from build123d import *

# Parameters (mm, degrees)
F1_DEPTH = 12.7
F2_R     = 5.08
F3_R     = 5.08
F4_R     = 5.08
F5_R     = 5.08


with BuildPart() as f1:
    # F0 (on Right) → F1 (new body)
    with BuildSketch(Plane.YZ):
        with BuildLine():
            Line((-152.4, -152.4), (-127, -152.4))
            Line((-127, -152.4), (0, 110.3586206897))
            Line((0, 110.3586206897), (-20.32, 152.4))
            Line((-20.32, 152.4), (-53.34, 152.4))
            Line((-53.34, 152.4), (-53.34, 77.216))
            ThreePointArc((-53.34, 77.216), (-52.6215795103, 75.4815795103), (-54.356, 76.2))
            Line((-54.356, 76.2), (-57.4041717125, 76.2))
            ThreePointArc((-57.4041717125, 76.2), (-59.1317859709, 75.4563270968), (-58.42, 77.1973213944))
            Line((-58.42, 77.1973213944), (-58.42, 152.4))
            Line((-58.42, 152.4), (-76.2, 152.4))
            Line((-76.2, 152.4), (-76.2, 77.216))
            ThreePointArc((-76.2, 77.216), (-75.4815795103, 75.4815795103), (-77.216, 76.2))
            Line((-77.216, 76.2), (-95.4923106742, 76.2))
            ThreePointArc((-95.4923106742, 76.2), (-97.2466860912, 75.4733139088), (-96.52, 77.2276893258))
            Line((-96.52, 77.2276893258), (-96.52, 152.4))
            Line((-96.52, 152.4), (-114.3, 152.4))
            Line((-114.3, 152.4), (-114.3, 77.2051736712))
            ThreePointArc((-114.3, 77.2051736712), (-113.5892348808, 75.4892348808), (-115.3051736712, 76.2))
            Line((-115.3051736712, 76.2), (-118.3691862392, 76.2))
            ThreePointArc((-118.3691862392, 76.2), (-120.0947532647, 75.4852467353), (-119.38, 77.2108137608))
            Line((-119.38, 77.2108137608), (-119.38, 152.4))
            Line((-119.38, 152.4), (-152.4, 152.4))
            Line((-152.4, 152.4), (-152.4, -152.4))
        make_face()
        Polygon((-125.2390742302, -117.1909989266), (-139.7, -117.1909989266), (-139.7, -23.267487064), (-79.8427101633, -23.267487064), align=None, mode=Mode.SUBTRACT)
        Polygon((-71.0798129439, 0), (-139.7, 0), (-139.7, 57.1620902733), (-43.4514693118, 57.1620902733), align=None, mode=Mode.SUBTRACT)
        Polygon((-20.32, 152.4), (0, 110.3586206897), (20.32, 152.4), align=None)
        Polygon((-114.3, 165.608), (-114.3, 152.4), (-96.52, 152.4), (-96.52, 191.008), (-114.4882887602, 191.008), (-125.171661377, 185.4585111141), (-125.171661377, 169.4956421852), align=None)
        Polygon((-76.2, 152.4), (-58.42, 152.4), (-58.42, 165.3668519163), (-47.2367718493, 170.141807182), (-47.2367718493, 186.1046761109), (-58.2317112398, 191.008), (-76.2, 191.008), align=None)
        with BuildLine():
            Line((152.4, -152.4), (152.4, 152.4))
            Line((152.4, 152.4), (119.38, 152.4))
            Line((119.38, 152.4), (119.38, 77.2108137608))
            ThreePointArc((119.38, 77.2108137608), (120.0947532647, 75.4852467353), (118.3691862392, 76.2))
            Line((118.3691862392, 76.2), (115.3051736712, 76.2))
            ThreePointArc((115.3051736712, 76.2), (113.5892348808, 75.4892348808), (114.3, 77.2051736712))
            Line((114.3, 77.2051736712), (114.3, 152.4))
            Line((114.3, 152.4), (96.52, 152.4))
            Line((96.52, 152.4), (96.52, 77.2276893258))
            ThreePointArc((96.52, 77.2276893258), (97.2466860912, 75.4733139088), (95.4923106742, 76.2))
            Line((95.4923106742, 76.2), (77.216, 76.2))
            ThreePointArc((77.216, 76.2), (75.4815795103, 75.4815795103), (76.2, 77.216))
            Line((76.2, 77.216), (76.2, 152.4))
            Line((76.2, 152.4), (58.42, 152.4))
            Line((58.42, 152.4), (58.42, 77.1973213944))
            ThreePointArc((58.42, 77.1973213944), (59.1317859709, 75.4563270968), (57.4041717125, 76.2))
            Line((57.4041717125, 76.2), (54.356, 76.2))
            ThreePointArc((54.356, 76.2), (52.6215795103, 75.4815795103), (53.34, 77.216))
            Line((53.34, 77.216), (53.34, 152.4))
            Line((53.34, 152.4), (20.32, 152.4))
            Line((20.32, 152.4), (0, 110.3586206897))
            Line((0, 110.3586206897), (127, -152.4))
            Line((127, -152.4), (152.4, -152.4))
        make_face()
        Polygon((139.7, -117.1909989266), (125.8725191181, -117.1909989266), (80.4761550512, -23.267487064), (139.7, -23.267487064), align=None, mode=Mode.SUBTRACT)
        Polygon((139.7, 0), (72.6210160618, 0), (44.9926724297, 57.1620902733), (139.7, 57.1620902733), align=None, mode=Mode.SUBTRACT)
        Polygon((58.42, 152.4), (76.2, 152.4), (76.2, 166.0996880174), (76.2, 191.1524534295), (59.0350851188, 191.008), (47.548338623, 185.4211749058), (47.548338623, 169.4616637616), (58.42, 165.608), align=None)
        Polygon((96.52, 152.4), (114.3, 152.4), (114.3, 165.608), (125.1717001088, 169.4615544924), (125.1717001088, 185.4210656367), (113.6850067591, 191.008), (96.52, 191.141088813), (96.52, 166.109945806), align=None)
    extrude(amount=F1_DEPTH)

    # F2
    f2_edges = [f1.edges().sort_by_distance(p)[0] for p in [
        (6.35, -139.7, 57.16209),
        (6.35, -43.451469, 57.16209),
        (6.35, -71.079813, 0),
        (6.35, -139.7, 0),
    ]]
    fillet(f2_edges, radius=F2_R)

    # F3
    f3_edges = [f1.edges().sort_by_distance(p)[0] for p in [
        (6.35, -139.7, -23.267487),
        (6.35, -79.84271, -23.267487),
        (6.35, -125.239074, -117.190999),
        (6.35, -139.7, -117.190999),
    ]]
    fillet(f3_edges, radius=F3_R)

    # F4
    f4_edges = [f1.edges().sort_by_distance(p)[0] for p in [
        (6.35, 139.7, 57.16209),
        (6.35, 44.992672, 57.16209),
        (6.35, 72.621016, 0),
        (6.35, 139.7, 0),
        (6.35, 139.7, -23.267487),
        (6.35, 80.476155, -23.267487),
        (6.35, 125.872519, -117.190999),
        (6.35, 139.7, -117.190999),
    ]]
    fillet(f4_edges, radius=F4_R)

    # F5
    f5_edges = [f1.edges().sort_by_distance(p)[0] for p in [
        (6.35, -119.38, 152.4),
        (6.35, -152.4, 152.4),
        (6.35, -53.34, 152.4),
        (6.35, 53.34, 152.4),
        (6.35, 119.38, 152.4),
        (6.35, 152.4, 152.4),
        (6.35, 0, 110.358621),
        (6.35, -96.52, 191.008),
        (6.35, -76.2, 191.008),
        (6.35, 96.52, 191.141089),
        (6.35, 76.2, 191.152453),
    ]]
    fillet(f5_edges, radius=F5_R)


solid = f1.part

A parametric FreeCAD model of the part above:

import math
import FreeCAD as App
import Part
import Sketcher
from FreeCAD import Vector
Q = App.Units.Quantity


def edges_at(feature, points):
    """Names of the edges that pass closest to the given points."""
    edges = feature.Shape.Edges
    near = lambda p: min(range(len(edges)), key=lambda i: edges[i].distToShape(Part.Vertex(*p))[0])
    return sorted({f"Edge{near(p) + 1}" for p in points})

doc = App.newDocument("Part")
params = doc.addObject("Spreadsheet::Sheet", "Params")
for row, (alias, value) in enumerate([
    ("sketch1_width", "1 in"),
    ("sketch1_height", "12 in"),
    ("sketch1_radius", "0.04 in"),
    ("sketch1_width2", "1.3 in"),
    ("sketch1_width3", "4.2 in"),
    ("pad1_length", "0.5 in"),
    ("fillet_radius", "0.2 in"),
    ("fillet2_radius", "0.2 in"),
    ("fillet3_radius", "0.2 in"),
    ("fillet4_radius", "0.2 in"),
], start=1):
    params.set(f"A{row}", alias)
    params.set(f"B{row}", "=" + value)
    params.setAlias(f"B{row}", alias)

body = doc.addObject("PartDesign::Body", "Body")

# Sketch on YZ plane
sketch1 = body.newObject("Sketcher::SketchObject", "Sketch")
sketch1.AttachmentSupport = (doc.getObject("YZ_Plane"), [""])
sketch1.MapMode = "FlatFace"
sketch1.addGeometry([
    Part.LineSegment(Vector(-152.4, -152.4, 0), Vector(-127, -152.4, 0)),  # 0
    Part.LineSegment(Vector(-127, -152.4, 0), Vector(0, 110.358621, 0)),  # 1
    Part.LineSegment(Vector(0, 110.358621, 0), Vector(127, -152.4, 0)),  # 2
    Part.LineSegment(Vector(127, -152.4, 0), Vector(152.4, -152.4, 0)),  # 3
    Part.LineSegment(Vector(152.4, -152.4, 0), Vector(152.4, 152.4, 0)),  # 4
    Part.LineSegment(Vector(152.4, 152.4, 0), Vector(119.38, 152.4, 0)),  # 5
    Part.LineSegment(Vector(119.38, 152.4, 0), Vector(119.38, 77.210814, 0)),  # 6
    Part.ArcOfCircle(Part.Circle(Vector(119.38, 76.2, 0), Vector(0, 0, 1), 1.010814), math.radians(180), math.radians(450)),  # 7
    Part.LineSegment(Vector(118.369186, 76.2, 0), Vector(115.305174, 76.2, 0)),  # 8
    Part.ArcOfCircle(Part.Circle(Vector(114.3, 76.2, 0), Vector(0, 0, 1), 1.005174), math.radians(90), math.radians(360)),  # 9
    Part.LineSegment(Vector(114.3, 77.205174, 0), Vector(114.3, 165.608, 0)),  # 10
    Part.LineSegment(Vector(114.3, 165.608, 0), Vector(125.1717, 169.461554, 0)),  # 11
    Part.LineSegment(Vector(125.1717, 169.461554, 0), Vector(125.1717, 185.421066, 0)),  # 12
    Part.LineSegment(Vector(125.1717, 185.421066, 0), Vector(113.685007, 191.008, 0)),  # 13
    Part.LineSegment(Vector(113.685007, 191.008, 0), Vector(96.52, 191.141089, 0)),  # 14
    Part.LineSegment(Vector(96.52, 191.141089, 0), Vector(96.52, 77.227689, 0)),  # 15
    Part.ArcOfCircle(Part.Circle(Vector(96.52, 76.2, 0), Vector(0, 0, 1), 1.027689), math.radians(180), math.radians(450)),  # 16
    Part.LineSegment(Vector(95.492311, 76.2, 0), Vector(77.216, 76.2, 0)),  # 17
    Part.ArcOfCircle(Part.Circle(Vector(76.2, 76.2, 0), Vector(0, 0, 1), 1.016), math.radians(90), math.radians(360)),  # 18
    Part.LineSegment(Vector(76.2, 77.216, 0), Vector(76.2, 191.152453, 0)),  # 19
    Part.LineSegment(Vector(76.2, 191.152453, 0), Vector(59.035085, 191.008, 0)),  # 20
    Part.LineSegment(Vector(59.035085, 191.008, 0), Vector(47.548339, 185.421175, 0)),  # 21
    Part.LineSegment(Vector(47.548339, 185.421175, 0), Vector(47.548339, 169.461664, 0)),  # 22
    Part.LineSegment(Vector(47.548339, 169.461664, 0), Vector(58.42, 165.608, 0)),  # 23
    Part.LineSegment(Vector(58.42, 165.608, 0), Vector(58.42, 77.197321, 0)),  # 24
    Part.ArcOfCircle(Part.Circle(Vector(58.42, 76.181321, 0), Vector(0, 0, 1), 1.016), math.radians(178.946589), math.radians(450)),  # 25
    Part.LineSegment(Vector(57.404172, 76.2, 0), Vector(54.356, 76.2, 0)),  # 26
    Part.ArcOfCircle(Part.Circle(Vector(53.34, 76.2, 0), Vector(0, 0, 1), 1.016), math.radians(90), math.radians(360)),  # 27
    Part.LineSegment(Vector(53.34, 77.216, 0), Vector(53.34, 152.4, 0)),  # 28
    Part.LineSegment(Vector(53.34, 152.4, 0), Vector(-53.34, 152.4, 0)),  # 29
    Part.LineSegment(Vector(-53.34, 152.4, 0), Vector(-53.34, 77.216, 0)),  # 30
    Part.ArcOfCircle(Part.Circle(Vector(-53.34, 76.2, 0), Vector(0, 0, 1), 1.016), math.radians(180), math.radians(450)),  # 31
    Part.LineSegment(Vector(-54.356, 76.2, 0), Vector(-57.404172, 76.2, 0)),  # 32
    Part.ArcOfCircle(Part.Circle(Vector(-58.42, 76.181321, 0), Vector(0, 0, 1), 1.016), math.radians(90), math.radians(361.053411)),  # 33
    Part.LineSegment(Vector(-58.42, 77.197321, 0), Vector(-58.42, 165.366852, 0)),  # 34
    Part.LineSegment(Vector(-58.42, 165.366852, 0), Vector(-47.236772, 170.141807, 0)),  # 35
    Part.LineSegment(Vector(-47.236772, 170.141807, 0), Vector(-47.236772, 186.104676, 0)),  # 36
    Part.LineSegment(Vector(-47.236772, 186.104676, 0), Vector(-58.231711, 191.008, 0)),  # 37
    Part.LineSegment(Vector(-58.231711, 191.008, 0), Vector(-76.2, 191.008, 0)),  # 38
    Part.LineSegment(Vector(-76.2, 191.008, 0), Vector(-76.2, 77.216, 0)),  # 39
    Part.ArcOfCircle(Part.Circle(Vector(-76.2, 76.2, 0), Vector(0, 0, 1), 1.016), math.radians(180), math.radians(450)),  # 40
    Part.LineSegment(Vector(-77.216, 76.2, 0), Vector(-95.492311, 76.2, 0)),  # 41
    Part.ArcOfCircle(Part.Circle(Vector(-96.52, 76.2, 0), Vector(0, 0, 1), 1.027689), math.radians(90), math.radians(360)),  # 42
    Part.LineSegment(Vector(-96.52, 77.227689, 0), Vector(-96.52, 191.008, 0)),  # 43
    Part.LineSegment(Vector(-96.52, 191.008, 0), Vector(-114.488289, 191.008, 0)),  # 44
    Part.LineSegment(Vector(-114.488289, 191.008, 0), Vector(-125.171661, 185.458511, 0)),  # 45
    Part.LineSegment(Vector(-125.171661, 185.458511, 0), Vector(-125.171661, 169.495642, 0)),  # 46
    Part.LineSegment(Vector(-125.171661, 169.495642, 0), Vector(-114.3, 165.608, 0)),  # 47
    Part.LineSegment(Vector(-114.3, 165.608, 0), Vector(-114.3, 77.205174, 0)),  # 48
    Part.ArcOfCircle(Part.Circle(Vector(-114.3, 76.2, 0), Vector(0, 0, 1), 1.005174), math.radians(180), math.radians(450)),  # 49
    Part.LineSegment(Vector(-115.305174, 76.2, 0), Vector(-118.369186, 76.2, 0)),  # 50
    Part.ArcOfCircle(Part.Circle(Vector(-119.38, 76.2, 0), Vector(0, 0, 1), 1.010814), math.radians(90), math.radians(360)),  # 51
    Part.LineSegment(Vector(-119.38, 77.210814, 0), Vector(-119.38, 152.4, 0)),  # 52
    Part.LineSegment(Vector(-119.38, 152.4, 0), Vector(-152.4, 152.4, 0)),  # 53
    Part.LineSegment(Vector(-152.4, 152.4, 0), Vector(-152.4, -152.4, 0)),  # 54
    Part.LineSegment(Vector(-79.84271, -23.267487, 0), Vector(-125.239074, -117.190999, 0)),  # 55
    Part.LineSegment(Vector(-125.239074, -117.190999, 0), Vector(-139.7, -117.190999, 0)),  # 56
    Part.LineSegment(Vector(-139.7, -117.190999, 0), Vector(-139.7, -23.267487, 0)),  # 57
    Part.LineSegment(Vector(-139.7, -23.267487, 0), Vector(-79.84271, -23.267487, 0)),  # 58
    Part.LineSegment(Vector(139.7, -23.267487, 0), Vector(139.7, -117.190999, 0)),  # 59
    Part.LineSegment(Vector(139.7, -117.190999, 0), Vector(125.872519, -117.190999, 0)),  # 60
    Part.LineSegment(Vector(125.872519, -117.190999, 0), Vector(80.476155, -23.267487, 0)),  # 61
    Part.LineSegment(Vector(80.476155, -23.267487, 0), Vector(139.7, -23.267487, 0)),  # 62
    Part.LineSegment(Vector(-43.451469, 57.16209, 0), Vector(-71.079813, 0, 0)),  # 63
    Part.LineSegment(Vector(-71.079813, 0, 0), Vector(-139.7, 0, 0)),  # 64
    Part.LineSegment(Vector(-139.7, 0, 0), Vector(-139.7, 57.16209, 0)),  # 65
    Part.LineSegment(Vector(-139.7, 57.16209, 0), Vector(-43.451469, 57.16209, 0)),  # 66
    Part.LineSegment(Vector(139.7, 57.16209, 0), Vector(139.7, 0, 0)),  # 67
    Part.LineSegment(Vector(139.7, 0, 0), Vector(72.621016, 0, 0)),  # 68
    Part.LineSegment(Vector(72.621016, 0, 0), Vector(44.992672, 57.16209, 0)),  # 69
    Part.LineSegment(Vector(44.992672, 57.16209, 0), Vector(139.7, 57.16209, 0)),  # 70
], False)
sketch1.addConstraint([
    Sketcher.Constraint("Coincident", 0, 2, 1, 1),
    Sketcher.Constraint("Coincident", 1, 2, 2, 1),
    Sketcher.Constraint("Coincident", 2, 2, 3, 1),
    Sketcher.Constraint("Coincident", 3, 2, 4, 1),
    Sketcher.Constraint("Coincident", 4, 2, 5, 1),
    Sketcher.Constraint("Coincident", 5, 2, 6, 1),
    Sketcher.Constraint("Coincident", 6, 2, 7, 2),
    Sketcher.Constraint("Coincident", 7, 1, 8, 1),
    Sketcher.Constraint("Coincident", 8, 2, 9, 2),
    Sketcher.Constraint("Coincident", 9, 1, 10, 1),
    Sketcher.Constraint("Coincident", 10, 2, 11, 1),
    Sketcher.Constraint("Coincident", 11, 2, 12, 1),
    Sketcher.Constraint("Coincident", 12, 2, 13, 1),
    Sketcher.Constraint("Coincident", 13, 2, 14, 1),
    Sketcher.Constraint("Coincident", 14, 2, 15, 1),
    Sketcher.Constraint("Coincident", 15, 2, 16, 2),
    Sketcher.Constraint("Coincident", 16, 1, 17, 1),
    Sketcher.Constraint("Coincident", 17, 2, 18, 2),
    Sketcher.Constraint("Coincident", 18, 1, 19, 1),
    Sketcher.Constraint("Coincident", 19, 2, 20, 1),
    Sketcher.Constraint("Coincident", 20, 2, 21, 1),
    Sketcher.Constraint("Coincident", 21, 2, 22, 1),
    Sketcher.Constraint("Coincident", 22, 2, 23, 1),
    Sketcher.Constraint("Coincident", 23, 2, 24, 1),
    Sketcher.Constraint("Coincident", 24, 2, 25, 2),
    Sketcher.Constraint("Coincident", 25, 1, 26, 1),
    Sketcher.Constraint("Coincident", 26, 2, 27, 2),
    Sketcher.Constraint("Coincident", 27, 1, 28, 1),
    Sketcher.Constraint("Coincident", 28, 2, 29, 1),
    Sketcher.Constraint("Coincident", 29, 2, 30, 1),
    Sketcher.Constraint("Coincident", 30, 2, 31, 2),
    Sketcher.Constraint("Coincident", 31, 1, 32, 1),
    Sketcher.Constraint("Coincident", 32, 2, 33, 2),
    Sketcher.Constraint("Coincident", 33, 1, 34, 1),
    Sketcher.Constraint("Coincident", 34, 2, 35, 1),
    Sketcher.Constraint("Coincident", 35, 2, 36, 1),
    Sketcher.Constraint("Coincident", 36, 2, 37, 1),
    Sketcher.Constraint("Coincident", 37, 2, 38, 1),
    Sketcher.Constraint("Coincident", 38, 2, 39, 1),
    Sketcher.Constraint("Coincident", 39, 2, 40, 2),
    Sketcher.Constraint("Coincident", 40, 1, 41, 1),
    Sketcher.Constraint("Coincident", 41, 2, 42, 2),
    Sketcher.Constraint("Coincident", 42, 1, 43, 1),
    Sketcher.Constraint("Coincident", 43, 2, 44, 1),
    Sketcher.Constraint("Coincident", 44, 2, 45, 1),
    Sketcher.Constraint("Coincident", 45, 2, 46, 1),
    Sketcher.Constraint("Coincident", 46, 2, 47, 1),
    Sketcher.Constraint("Coincident", 47, 2, 48, 1),
    Sketcher.Constraint("Coincident", 48, 2, 49, 2),
    Sketcher.Constraint("Coincident", 49, 1, 50, 1),
    Sketcher.Constraint("Coincident", 50, 2, 51, 2),
    Sketcher.Constraint("Coincident", 51, 1, 52, 1),
    Sketcher.Constraint("Coincident", 52, 2, 53, 1),
    Sketcher.Constraint("Coincident", 53, 2, 54, 1),
    Sketcher.Constraint("Coincident", 54, 2, 0, 1),
    Sketcher.Constraint("Coincident", 55, 2, 56, 1),
    Sketcher.Constraint("Coincident", 56, 2, 57, 1),
    Sketcher.Constraint("Coincident", 57, 2, 58, 1),
    Sketcher.Constraint("Coincident", 58, 2, 55, 1),
    Sketcher.Constraint("Coincident", 59, 2, 60, 1),
    Sketcher.Constraint("Coincident", 60, 2, 61, 1),
    Sketcher.Constraint("Coincident", 61, 2, 62, 1),
    Sketcher.Constraint("Coincident", 62, 2, 59, 1),
    Sketcher.Constraint("Coincident", 63, 2, 64, 1),
    Sketcher.Constraint("Coincident", 64, 2, 65, 1),
    Sketcher.Constraint("Coincident", 65, 2, 66, 1),
    Sketcher.Constraint("Coincident", 66, 2, 63, 1),
    Sketcher.Constraint("Coincident", 67, 2, 68, 1),
    Sketcher.Constraint("Coincident", 68, 2, 69, 1),
    Sketcher.Constraint("Coincident", 69, 2, 70, 1),
    Sketcher.Constraint("Coincident", 70, 2, 67, 1),
    Sketcher.Constraint("Horizontal", 0),
    Sketcher.Constraint("Horizontal", 3),
    Sketcher.Constraint("Vertical", 4),
    Sketcher.Constraint("Horizontal", 5),
    Sketcher.Constraint("Vertical", 6),
    Sketcher.Constraint("Horizontal", 8),
    Sketcher.Constraint("Vertical", 10),
    Sketcher.Constraint("Vertical", 12),
    Sketcher.Constraint("Vertical", 15),
    Sketcher.Constraint("Horizontal", 17),
    Sketcher.Constraint("Vertical", 19),
    Sketcher.Constraint("Vertical", 22),
    Sketcher.Constraint("Vertical", 24),
    Sketcher.Constraint("Horizontal", 26),
    Sketcher.Constraint("Vertical", 28),
    Sketcher.Constraint("Horizontal", 29),
    Sketcher.Constraint("Vertical", 30),
    Sketcher.Constraint("Horizontal", 32),
    Sketcher.Constraint("Vertical", 34),
    Sketcher.Constraint("Vertical", 36),
    Sketcher.Constraint("Horizontal", 38),
    Sketcher.Constraint("Vertical", 39),
    Sketcher.Constraint("Horizontal", 41),
    Sketcher.Constraint("Vertical", 43),
    Sketcher.Constraint("Horizontal", 44),
    Sketcher.Constraint("Vertical", 46),
    Sketcher.Constraint("Vertical", 48),
    Sketcher.Constraint("Horizontal", 50),
    Sketcher.Constraint("Vertical", 52),
    Sketcher.Constraint("Horizontal", 53),
    Sketcher.Constraint("Vertical", 54),
    Sketcher.Constraint("Horizontal", 56),
    Sketcher.Constraint("Vertical", 57),
    Sketcher.Constraint("Horizontal", 58),
    Sketcher.Constraint("Vertical", 59),
    Sketcher.Constraint("Horizontal", 60),
    Sketcher.Constraint("Horizontal", 62),
    Sketcher.Constraint("Horizontal", 64),
    Sketcher.Constraint("Vertical", 65),
    Sketcher.Constraint("Horizontal", 66),
    Sketcher.Constraint("Vertical", 67),
    Sketcher.Constraint("Horizontal", 68),
    Sketcher.Constraint("Horizontal", 70),
    Sketcher.Constraint("Equal", 18, 25),
    Sketcher.Constraint("Equal", 25, 27),
    Sketcher.Constraint("Equal", 27, 31),
    Sketcher.Constraint("Equal", 31, 33),
    Sketcher.Constraint("Equal", 33, 40),
    Sketcher.Constraint("Equal", 16, 42),
    Sketcher.Constraint("Equal", 9, 49),
    Sketcher.Constraint("Equal", 7, 51),
    Sketcher.Constraint("Symmetric", 3, 2, 53, 2, -1, 1),
    Sketcher.Constraint("Symmetric", 64, 2, 67, 2, -1, 1),
    Sketcher.Constraint("Symmetric", 27, 3, 31, 3, -2),
    Sketcher.Constraint("Symmetric", 25, 3, 33, 3, -2),
    Sketcher.Constraint("Symmetric", 18, 3, 40, 3, -2),
    Sketcher.Constraint("Symmetric", 16, 3, 42, 3, -2),
    Sketcher.Constraint("Symmetric", 9, 3, 49, 3, -2),
    Sketcher.Constraint("Symmetric", 7, 3, 51, 3, -2),
    Sketcher.Constraint("Symmetric", 0, 2, 2, 2, -2),
    Sketcher.Constraint("Symmetric", 10, 2, 47, 2, -2),
    Sketcher.Constraint("Symmetric", 5, 2, 52, 2, -2),
    Sketcher.Constraint("Symmetric", 56, 2, 59, 2, -2),
    Sketcher.Constraint("PointOnObject", 1, 2, -2),
    Sketcher.Constraint("PointOnObject", 63, 2, -1),
    Sketcher.Constraint("Parallel", 1, 55),
    Sketcher.Constraint("Parallel", 2, 61),
    Sketcher.Constraint("Parallel", 55, 63),
    Sketcher.Constraint("Parallel", 61, 69),
    Sketcher.Constraint("Horizontal", 7, 3, 9, 3),
    Sketcher.Constraint("Horizontal", 9, 3, 16, 3),
    Sketcher.Constraint("Horizontal", 16, 3, 18, 3),
    Sketcher.Constraint("Horizontal", 18, 3, 27, 3),
    Sketcher.Constraint("Horizontal", 51, 3, 7, 1),
    Sketcher.Constraint("Horizontal", 8, 2, 16, 1),
    Sketcher.Constraint("Horizontal", 13, 2, 20, 2),
    Sketcher.Constraint("Horizontal", 10, 2, 23, 2),
    Sketcher.Constraint("Horizontal", 17, 2, 25, 1),
    Sketcher.Constraint("Horizontal", 5, 2, 28, 2),
    Sketcher.Constraint("Horizontal", 26, 2, 31, 1),
    Sketcher.Constraint("Horizontal", 20, 2, 37, 2),
    Sketcher.Constraint("Horizontal", 32, 2, 40, 1),
    Sketcher.Constraint("Horizontal", 38, 2, 43, 2),
    Sketcher.Constraint("Horizontal", 41, 2, 49, 1),
    Sketcher.Constraint("Horizontal", 58, 2, 61, 2),
    Sketcher.Constraint("Horizontal", 66, 2, 69, 2),
    Sketcher.Constraint("Vertical", 7, 3, 5, 2),
    Sketcher.Constraint("Vertical", 16, 3, 14, 2),
    Sketcher.Constraint("Vertical", 25, 3, 23, 2),
    Sketcher.Constraint("Vertical", 31, 3, 29, 2),
    Sketcher.Constraint("Vertical", 40, 3, 38, 2),
    Sketcher.Constraint("Vertical", 49, 3, 47, 2),
    Sketcher.Constraint("Vertical", 57, 2, 64, 2),
    Sketcher.Constraint("Equal", 38, 44),
    Sketcher.Constraint("Equal", 12, 22),
    Sketcher.Constraint("Equal", 36, 46),
    Sketcher.Constraint("Equal", 14, 20),
    Sketcher.Constraint("Equal", 13, 21),
    Sketcher.Constraint("Equal", 11, 23),
    Sketcher.Constraint("Equal", 37, 45),
    Sketcher.Constraint("DistanceX", 0, 1, 0, 2, Q("1 in")),
    Sketcher.Constraint("DistanceY", 4, 1, 4, 2, Q("12 in")),
    Sketcher.Constraint("Radius", 18, Q("0.04 in")),
    Sketcher.Constraint("DistanceX", 5, 2, 5, 1, Q("1.3 in")),
    Sketcher.Constraint("DistanceX", 29, 2, 29, 1, Q("4.2 in")),
    Sketcher.Constraint("DistanceY", -1, 1, 7, 3, Q("3 in")),
    Sketcher.Constraint("DistanceX", -1, 1, 18, 3, Q("3 in")),
    Sketcher.Constraint("DistanceX", 0, 2, -1, 1, Q("5 in")),
    Sketcher.Constraint("DistanceX", -1, 1, 18, 1, Q("3 in")),
    Sketcher.Constraint("DistanceY", 39, 2, 39, 1, Q("4.48 in")),
    Sketcher.Constraint("DistanceX", -1, 1, 9, 3, Q("4.5 in")),
    Sketcher.Constraint("DistanceX", -1, 1, 16, 3, Q("3.8 in")),
    Sketcher.Constraint("DistanceX", -1, 1, 25, 3, Q("2.3 in")),
    Sketcher.Constraint("DistanceX", -1, 1, 27, 3, Q("2.1 in")),
    Sketcher.Constraint("DistanceX", 33, 1, -1, 1, Q("2.3 in")),
    Sketcher.Constraint("DistanceX", 42, 1, -1, 1, Q("3.8 in")),
    Sketcher.Constraint("DistanceX", 56, 2, -1, 1, Q("5.5 in")),
    Sketcher.Constraint("DistanceY", -1, 1, 10, 2, Q("6.52 in")),
    Sketcher.Constraint("Radius", 16, Q("1.027689 mm")),
    Sketcher.Constraint("DistanceY", 15, 2, 15, 1, Q("113.913399 mm")),
    Sketcher.Constraint("Radius", 7, Q("1.010814 mm")),
    Sketcher.Constraint("Radius", 9, Q("1.005174 mm")),
    Sketcher.Constraint("DistanceX", 26, 2, 26, 1, Q("3.048172 mm")),
    Sketcher.Constraint("DistanceX", 38, 2, 38, 1, Q("17.968289 mm")),
    Sketcher.Constraint("DistanceX", 58, 1, 58, 2, Q("59.85729 mm")),
    Sketcher.Constraint("DistanceX", 60, 2, 60, 1, Q("13.827481 mm")),
    Sketcher.Constraint("DistanceX", 66, 1, 66, 2, Q("96.248531 mm")),
    Sketcher.Constraint("DistanceY", 12, 1, 12, 2, Q("15.959511 mm")),
    Sketcher.Constraint("DistanceY", 34, 1, 34, 2, Q("88.169531 mm")),
    Sketcher.Constraint("DistanceY", 36, 1, 36, 2, Q("15.962869 mm")),
    Sketcher.Constraint("DistanceY", 57, 1, 57, 2, Q("93.923512 mm")),
    Sketcher.Constraint("DistanceY", 65, 1, 65, 2, Q("57.16209 mm")),
    Sketcher.Constraint("DistanceX", -1, 1, 11, 2, Q("125.1717 mm")),
    Sketcher.Constraint("DistanceY", 55, 2, -1, 1, Q("117.190999 mm")),
    Sketcher.Constraint("Distance", 1, Q("291.840869 mm")),
    Sketcher.Constraint("Distance", 11, Q("11.534459 mm")),
    Sketcher.Constraint("Distance", 13, Q("12.77333 mm")),
    Sketcher.Constraint("Distance", 37, Q("12.038741 mm")),
    Sketcher.Constraint("DistanceX", 68, 2, 68, 1, Q("67.078984 mm")),
    Sketcher.Constraint("DistanceY", 19, 1, 19, 2, Q("113.936453 mm")),
    Sketcher.Constraint("DistanceX", 35, 2, -1, 1, Q("47.236772 mm")),
    Sketcher.Constraint("DistanceX", 45, 2, -1, 1, Q("125.171661 mm")),
])
sketch1.setExpression("Constraints[171]", "Params.sketch1_width")
sketch1.setExpression("Constraints[172]", "Params.sketch1_height")
sketch1.setExpression("Constraints[173]", "Params.sketch1_radius")
sketch1.setExpression("Constraints[174]", "Params.sketch1_width2")
sketch1.setExpression("Constraints[175]", "Params.sketch1_width3")
pad1 = body.newObject("PartDesign::Pad", "Pad")
pad1.Profile = sketch1
pad1.setExpression("Length", "Params.pad1_length")
doc.recompute()

fillet = body.newObject("PartDesign::Fillet", "Fillet")
fillet.Base = (pad1, edges_at(pad1, [
    (6.35, -139.7, 57.162),
    (6.35, -43.451, 57.162),
    (6.35, -71.08, 0),
    (6.35, -139.7, 0),
]))
fillet.setExpression("Radius", "Params.fillet_radius")
doc.recompute()

fillet2 = body.newObject("PartDesign::Fillet", "Fillet001")
fillet2.Base = (fillet, edges_at(fillet, [
    (6.35, -139.7, -23.267),
    (6.35, -79.843, -23.267),
    (6.35, -125.239, -117.191),
    (6.35, -139.7, -117.191),
]))
fillet2.setExpression("Radius", "Params.fillet2_radius")
doc.recompute()

fillet3 = body.newObject("PartDesign::Fillet", "Fillet002")
fillet3.Base = (fillet2, edges_at(fillet2, [
    (6.35, 139.7, 57.162),
    (6.35, 44.993, 57.162),
    (6.35, 72.621, 0),
    (6.35, 139.7, 0),
    (6.35, 139.7, -23.267),
    (6.35, 80.476, -23.267),
    (6.35, 125.873, -117.191),
    (6.35, 139.7, -117.191),
]))
fillet3.setExpression("Radius", "Params.fillet3_radius")
doc.recompute()

fillet4 = body.newObject("PartDesign::Fillet", "Fillet003")
fillet4.Base = (fillet3, edges_at(fillet3, [
    (6.35, -119.38, 152.4),
    (6.35, -152.4, 152.4),
    (6.35, -53.34, 152.4),
    (6.35, 53.34, 152.4),
    (6.35, 119.38, 152.4),
    (6.35, 152.4, 152.4),
    (6.35, 0, 110.359),
    (6.35, -96.52, 191.008),
    (6.35, -76.2, 191.008),
    (6.35, 96.52, 191.141),
    (6.35, 76.2, 191.152),
]))
fillet4.setExpression("Radius", "Params.fillet4_radius")

doc.recompute()
